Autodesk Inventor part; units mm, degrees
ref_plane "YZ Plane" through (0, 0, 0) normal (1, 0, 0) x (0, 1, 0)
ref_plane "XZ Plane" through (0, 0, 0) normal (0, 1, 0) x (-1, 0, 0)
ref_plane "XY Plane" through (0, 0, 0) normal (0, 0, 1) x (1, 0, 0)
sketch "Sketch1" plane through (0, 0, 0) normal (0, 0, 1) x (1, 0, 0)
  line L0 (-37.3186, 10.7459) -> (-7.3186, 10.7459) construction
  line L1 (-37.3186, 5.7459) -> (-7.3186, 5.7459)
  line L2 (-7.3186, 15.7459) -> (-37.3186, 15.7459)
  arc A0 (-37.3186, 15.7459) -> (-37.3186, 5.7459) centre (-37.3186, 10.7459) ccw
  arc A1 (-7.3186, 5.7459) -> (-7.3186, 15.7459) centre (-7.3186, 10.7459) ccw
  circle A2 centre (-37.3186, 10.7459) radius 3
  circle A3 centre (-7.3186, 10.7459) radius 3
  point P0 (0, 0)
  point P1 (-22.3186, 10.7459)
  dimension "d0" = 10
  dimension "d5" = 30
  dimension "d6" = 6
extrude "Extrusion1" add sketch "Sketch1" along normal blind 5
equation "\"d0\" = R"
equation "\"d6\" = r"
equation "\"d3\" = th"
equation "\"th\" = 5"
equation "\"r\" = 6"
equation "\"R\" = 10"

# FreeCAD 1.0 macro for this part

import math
import FreeCAD as App
import Part
import Sketcher

doc = App.newDocument("Part")
params = doc.addObject("Spreadsheet::Sheet", "Params")
for row, (alias, value) in enumerate([
    ("sketch1_diameter", "6 mm"),
    ("sketch1_radius", "5 mm"),
    ("sketch1_width", "30 mm"),
    ("pad1_length", "5 mm"),
], start=1):
    params.set(f"A{row}", alias)
    params.set(f"B{row}", "=" + value)
    params.setAlias(f"B{row}", alias)

body = doc.addObject("PartDesign::Body", "Body")

sketch1 = body.newObject("Sketcher::SketchObject", "Sketch")
sketch1.AttachmentSupport = (doc.getObject("XY_Plane"), [""])
sketch1.MapMode = "FlatFace"
sketch1.addGeometry(Part.ArcOfCircle(Part.Circle(App.Vector(-37.3186, 10.7459, 0), App.Vector(0, 0, 1), 5), math.radians(90), math.radians(270)), False)
sketch1.addGeometry(Part.LineSegment(App.Vector(-37.3186, 5.7459, 0), App.Vector(-7.3186, 5.7459, 0)), False)
sketch1.addGeometry(Part.ArcOfCircle(Part.Circle(App.Vector(-7.3186, 10.7459, 0), App.Vector(0, 0, 1), 5), math.radians(-90), math.radians(90)), False)
sketch1.addGeometry(Part.LineSegment(App.Vector(-7.3186, 15.7459, 0), App.Vector(-37.3186, 15.7459, 0)), False)
sketch1.addGeometry(Part.Circle(App.Vector(-37.3186, 10.7459, 0), App.Vector(0, 0, 1), 3), False)
sketch1.addGeometry(Part.Circle(App.Vector(-7.3186, 10.7459, 0), App.Vector(0, 0, 1), 3), False)
sketch1.addConstraint(Sketcher.Constraint("Tangent", 0, 2, 1, 1))
sketch1.addConstraint(Sketcher.Constraint("Tangent", 1, 2, 2, 1))
sketch1.addConstraint(Sketcher.Constraint("Tangent", 2, 2, 3, 1))
sketch1.addConstraint(Sketcher.Constraint("Tangent", 3, 2, 0, 1))
sketch1.addConstraint(Sketcher.Constraint("Horizontal", 1))
sketch1.addConstraint(Sketcher.Constraint("Horizontal", 3))
sketch1.addConstraint(Sketcher.Constraint("Coincident", 4, 3, 0, 3))
sketch1.addConstraint(Sketcher.Constraint("Coincident", 5, 3, 2, 3))
sketch1.addConstraint(Sketcher.Constraint("Equal", 4, 5))
sketch1.addConstraint(Sketcher.Constraint("Diameter", 4, 6.0))
sketch1.addConstraint(Sketcher.Constraint("Radius", 0, 5.0))
sketch1.addConstraint(Sketcher.Constraint("DistanceX", 1, 1, 1, 2, 30.0))
sketch1.addConstraint(Sketcher.Constraint("DistanceY", -1, 1, 0, 3, 10.746))
sketch1.addConstraint(Sketcher.Constraint("DistanceX", 0, 3, -1, 1, 37.3186))
sketch1.setExpression("Constraints[9]", "Params.sketch1_diameter")
sketch1.setExpression("Constraints[10]", "Params.sketch1_radius")
sketch1.setExpression("Constraints[11]", "Params.sketch1_width")
pad1 = body.newObject("PartDesign::Pad", "Pad")
pad1.Profile = sketch1
pad1.setExpression("Length", "Params.pad1_length")

doc.recompute()
